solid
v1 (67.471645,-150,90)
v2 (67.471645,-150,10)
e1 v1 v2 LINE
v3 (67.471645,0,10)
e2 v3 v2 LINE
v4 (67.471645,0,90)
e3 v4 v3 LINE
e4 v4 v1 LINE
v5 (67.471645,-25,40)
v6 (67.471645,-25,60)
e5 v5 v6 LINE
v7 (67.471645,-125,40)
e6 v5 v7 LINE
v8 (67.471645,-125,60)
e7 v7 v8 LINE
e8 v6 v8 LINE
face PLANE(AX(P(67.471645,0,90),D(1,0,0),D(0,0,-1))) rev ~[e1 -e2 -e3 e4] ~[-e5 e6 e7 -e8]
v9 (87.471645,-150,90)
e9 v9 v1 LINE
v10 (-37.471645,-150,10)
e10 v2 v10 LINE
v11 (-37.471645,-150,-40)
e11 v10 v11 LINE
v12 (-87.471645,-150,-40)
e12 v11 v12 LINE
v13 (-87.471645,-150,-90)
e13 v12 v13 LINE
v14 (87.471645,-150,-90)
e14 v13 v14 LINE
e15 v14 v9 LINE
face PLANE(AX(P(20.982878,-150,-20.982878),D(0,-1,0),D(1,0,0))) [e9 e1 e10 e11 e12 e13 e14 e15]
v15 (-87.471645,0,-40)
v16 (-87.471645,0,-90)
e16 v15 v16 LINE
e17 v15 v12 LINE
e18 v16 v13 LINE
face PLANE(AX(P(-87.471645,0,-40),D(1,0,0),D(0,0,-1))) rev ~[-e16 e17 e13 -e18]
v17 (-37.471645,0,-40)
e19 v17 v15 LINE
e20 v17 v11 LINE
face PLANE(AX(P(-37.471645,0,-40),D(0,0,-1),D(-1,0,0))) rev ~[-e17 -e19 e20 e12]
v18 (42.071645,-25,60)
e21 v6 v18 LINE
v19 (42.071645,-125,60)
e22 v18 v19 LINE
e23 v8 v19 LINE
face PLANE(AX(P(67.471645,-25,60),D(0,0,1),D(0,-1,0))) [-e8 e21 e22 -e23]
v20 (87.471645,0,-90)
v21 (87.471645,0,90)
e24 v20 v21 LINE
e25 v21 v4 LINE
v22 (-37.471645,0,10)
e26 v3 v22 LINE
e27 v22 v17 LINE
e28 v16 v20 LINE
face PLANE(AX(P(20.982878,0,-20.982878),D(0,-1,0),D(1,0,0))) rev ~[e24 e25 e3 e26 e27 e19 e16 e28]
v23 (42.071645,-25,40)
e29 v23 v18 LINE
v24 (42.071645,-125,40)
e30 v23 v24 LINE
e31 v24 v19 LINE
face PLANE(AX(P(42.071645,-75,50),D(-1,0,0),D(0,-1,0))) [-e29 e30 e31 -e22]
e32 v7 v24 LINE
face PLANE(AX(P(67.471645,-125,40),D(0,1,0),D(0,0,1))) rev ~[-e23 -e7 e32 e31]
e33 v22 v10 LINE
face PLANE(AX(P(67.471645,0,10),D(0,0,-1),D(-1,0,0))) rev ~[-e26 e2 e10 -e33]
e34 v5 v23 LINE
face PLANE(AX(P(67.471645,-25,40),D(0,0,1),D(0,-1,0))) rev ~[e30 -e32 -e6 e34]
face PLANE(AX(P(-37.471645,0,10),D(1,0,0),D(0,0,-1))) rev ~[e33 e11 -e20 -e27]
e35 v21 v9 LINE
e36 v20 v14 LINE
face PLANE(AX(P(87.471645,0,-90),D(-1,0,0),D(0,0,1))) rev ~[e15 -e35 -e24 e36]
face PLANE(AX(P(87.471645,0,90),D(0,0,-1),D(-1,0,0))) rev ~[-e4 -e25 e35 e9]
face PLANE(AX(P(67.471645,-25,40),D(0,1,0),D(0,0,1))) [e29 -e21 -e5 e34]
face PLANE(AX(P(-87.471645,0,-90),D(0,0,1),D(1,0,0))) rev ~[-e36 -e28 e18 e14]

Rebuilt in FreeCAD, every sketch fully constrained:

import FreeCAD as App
import Part
import Sketcher

V = App.Vector


def add_polygon(sketch, points):
    """Adds a closed chain of lines whose ends are joined by coincident constraints."""
    first, n = sketch.GeometryCount, len(points)
    for a, b in zip(points, points[1:] + points[:1]):
        sketch.addGeometry(Part.LineSegment(App.Vector(*a, 0), App.Vector(*b, 0)), False)
    for i in range(n):
        sketch.addConstraint(Sketcher.Constraint("Coincident", first + i, 2, first + (i + 1) % n, 1))

doc = App.newDocument("Part")
body = doc.addObject("PartDesign::Body", "Body")

sketch1 = doc.addObject("Sketcher::SketchObject", "Sketch")
body.addObject(sketch1)
sketch1.AttachmentSupport = (doc.XZ_Plane, [""])
sketch1.MapMode = "FlatFace"
add_polygon(sketch1, [(87, 90), (67, 90), (67, 10), (-37, 10), (-37, -40), (-87, -40), (-87, -90), (87, -90)])
sketch1.addConstraint(Sketcher.Constraint("Horizontal", 0))
sketch1.addConstraint(Sketcher.Constraint("Vertical", 1))
sketch1.addConstraint(Sketcher.Constraint("Horizontal", 2))
sketch1.addConstraint(Sketcher.Constraint("Vertical", 3))
sketch1.addConstraint(Sketcher.Constraint("Horizontal", 4))
sketch1.addConstraint(Sketcher.Constraint("Vertical", 5))
sketch1.addConstraint(Sketcher.Constraint("Horizontal", 6))
sketch1.addConstraint(Sketcher.Constraint("Vertical", 7))
sketch1.addConstraint(Sketcher.Constraint("Symmetric", 5, 2, 7, 2, -1, 1))
sketch1.addConstraint(Sketcher.Constraint("Equal", 4, 3))
sketch1.addConstraint(Sketcher.Constraint("Equal", 3, 5))
sketch1.addConstraint(Sketcher.Constraint("DistanceX", 0, 2, 0, 1, 20.0))
sketch1.addConstraint(Sketcher.Constraint("DistanceX", 4, 2, 4, 1, 50.0))
sketch1.addConstraint(Sketcher.Constraint("DistanceY", 1, 2, 1, 1, 80.0))
sketch1.addConstraint(Sketcher.Constraint("DistanceX", 2, 2, 2, 1, 104.94329))
pad1 = doc.addObject("PartDesign::Pad", "Pad")
body.addObject(pad1)
pad1.Profile = sketch1
pad1.Length = 150

sketch2 = doc.addObject("Sketcher::SketchObject", "Sketch001")
body.addObject(sketch2)
sketch2.AttachmentSupport = (doc.YZ_Plane, [""])
sketch2.MapMode = "FlatFace"
sketch2.AttachmentOffset = App.Placement(V(0, 0, 67.471645), App.Rotation())
add_polygon(sketch2, [(-25, 60), (-25, 40), (-125, 40), (-125, 60)])
sketch2.addConstraint(Sketcher.Constraint("Vertical", 0))
sketch2.addConstraint(Sketcher.Constraint("Horizontal", 1))
sketch2.addConstraint(Sketcher.Constraint("Vertical", 2))
sketch2.addConstraint(Sketcher.Constraint("Horizontal", 3))
sketch2.addConstraint(Sketcher.Constraint("DistanceX", 1, 2, 1, 1, 100.0))
sketch2.addConstraint(Sketcher.Constraint("DistanceY", 0, 2, 0, 1, 20.0))
sketch2.addConstraint(Sketcher.Constraint("DistanceX", 0, 2, -1, 1, 25.0))
sketch2.addConstraint(Sketcher.Constraint("DistanceY", -1, 1, 0, 2, 40.0))
pad2 = doc.addObject("PartDesign::Pad", "Pad001")
body.addObject(pad2)
pad2.Profile = sketch2
pad2.Length = 25.4
pad2.Reversed = True

doc.recompute()
